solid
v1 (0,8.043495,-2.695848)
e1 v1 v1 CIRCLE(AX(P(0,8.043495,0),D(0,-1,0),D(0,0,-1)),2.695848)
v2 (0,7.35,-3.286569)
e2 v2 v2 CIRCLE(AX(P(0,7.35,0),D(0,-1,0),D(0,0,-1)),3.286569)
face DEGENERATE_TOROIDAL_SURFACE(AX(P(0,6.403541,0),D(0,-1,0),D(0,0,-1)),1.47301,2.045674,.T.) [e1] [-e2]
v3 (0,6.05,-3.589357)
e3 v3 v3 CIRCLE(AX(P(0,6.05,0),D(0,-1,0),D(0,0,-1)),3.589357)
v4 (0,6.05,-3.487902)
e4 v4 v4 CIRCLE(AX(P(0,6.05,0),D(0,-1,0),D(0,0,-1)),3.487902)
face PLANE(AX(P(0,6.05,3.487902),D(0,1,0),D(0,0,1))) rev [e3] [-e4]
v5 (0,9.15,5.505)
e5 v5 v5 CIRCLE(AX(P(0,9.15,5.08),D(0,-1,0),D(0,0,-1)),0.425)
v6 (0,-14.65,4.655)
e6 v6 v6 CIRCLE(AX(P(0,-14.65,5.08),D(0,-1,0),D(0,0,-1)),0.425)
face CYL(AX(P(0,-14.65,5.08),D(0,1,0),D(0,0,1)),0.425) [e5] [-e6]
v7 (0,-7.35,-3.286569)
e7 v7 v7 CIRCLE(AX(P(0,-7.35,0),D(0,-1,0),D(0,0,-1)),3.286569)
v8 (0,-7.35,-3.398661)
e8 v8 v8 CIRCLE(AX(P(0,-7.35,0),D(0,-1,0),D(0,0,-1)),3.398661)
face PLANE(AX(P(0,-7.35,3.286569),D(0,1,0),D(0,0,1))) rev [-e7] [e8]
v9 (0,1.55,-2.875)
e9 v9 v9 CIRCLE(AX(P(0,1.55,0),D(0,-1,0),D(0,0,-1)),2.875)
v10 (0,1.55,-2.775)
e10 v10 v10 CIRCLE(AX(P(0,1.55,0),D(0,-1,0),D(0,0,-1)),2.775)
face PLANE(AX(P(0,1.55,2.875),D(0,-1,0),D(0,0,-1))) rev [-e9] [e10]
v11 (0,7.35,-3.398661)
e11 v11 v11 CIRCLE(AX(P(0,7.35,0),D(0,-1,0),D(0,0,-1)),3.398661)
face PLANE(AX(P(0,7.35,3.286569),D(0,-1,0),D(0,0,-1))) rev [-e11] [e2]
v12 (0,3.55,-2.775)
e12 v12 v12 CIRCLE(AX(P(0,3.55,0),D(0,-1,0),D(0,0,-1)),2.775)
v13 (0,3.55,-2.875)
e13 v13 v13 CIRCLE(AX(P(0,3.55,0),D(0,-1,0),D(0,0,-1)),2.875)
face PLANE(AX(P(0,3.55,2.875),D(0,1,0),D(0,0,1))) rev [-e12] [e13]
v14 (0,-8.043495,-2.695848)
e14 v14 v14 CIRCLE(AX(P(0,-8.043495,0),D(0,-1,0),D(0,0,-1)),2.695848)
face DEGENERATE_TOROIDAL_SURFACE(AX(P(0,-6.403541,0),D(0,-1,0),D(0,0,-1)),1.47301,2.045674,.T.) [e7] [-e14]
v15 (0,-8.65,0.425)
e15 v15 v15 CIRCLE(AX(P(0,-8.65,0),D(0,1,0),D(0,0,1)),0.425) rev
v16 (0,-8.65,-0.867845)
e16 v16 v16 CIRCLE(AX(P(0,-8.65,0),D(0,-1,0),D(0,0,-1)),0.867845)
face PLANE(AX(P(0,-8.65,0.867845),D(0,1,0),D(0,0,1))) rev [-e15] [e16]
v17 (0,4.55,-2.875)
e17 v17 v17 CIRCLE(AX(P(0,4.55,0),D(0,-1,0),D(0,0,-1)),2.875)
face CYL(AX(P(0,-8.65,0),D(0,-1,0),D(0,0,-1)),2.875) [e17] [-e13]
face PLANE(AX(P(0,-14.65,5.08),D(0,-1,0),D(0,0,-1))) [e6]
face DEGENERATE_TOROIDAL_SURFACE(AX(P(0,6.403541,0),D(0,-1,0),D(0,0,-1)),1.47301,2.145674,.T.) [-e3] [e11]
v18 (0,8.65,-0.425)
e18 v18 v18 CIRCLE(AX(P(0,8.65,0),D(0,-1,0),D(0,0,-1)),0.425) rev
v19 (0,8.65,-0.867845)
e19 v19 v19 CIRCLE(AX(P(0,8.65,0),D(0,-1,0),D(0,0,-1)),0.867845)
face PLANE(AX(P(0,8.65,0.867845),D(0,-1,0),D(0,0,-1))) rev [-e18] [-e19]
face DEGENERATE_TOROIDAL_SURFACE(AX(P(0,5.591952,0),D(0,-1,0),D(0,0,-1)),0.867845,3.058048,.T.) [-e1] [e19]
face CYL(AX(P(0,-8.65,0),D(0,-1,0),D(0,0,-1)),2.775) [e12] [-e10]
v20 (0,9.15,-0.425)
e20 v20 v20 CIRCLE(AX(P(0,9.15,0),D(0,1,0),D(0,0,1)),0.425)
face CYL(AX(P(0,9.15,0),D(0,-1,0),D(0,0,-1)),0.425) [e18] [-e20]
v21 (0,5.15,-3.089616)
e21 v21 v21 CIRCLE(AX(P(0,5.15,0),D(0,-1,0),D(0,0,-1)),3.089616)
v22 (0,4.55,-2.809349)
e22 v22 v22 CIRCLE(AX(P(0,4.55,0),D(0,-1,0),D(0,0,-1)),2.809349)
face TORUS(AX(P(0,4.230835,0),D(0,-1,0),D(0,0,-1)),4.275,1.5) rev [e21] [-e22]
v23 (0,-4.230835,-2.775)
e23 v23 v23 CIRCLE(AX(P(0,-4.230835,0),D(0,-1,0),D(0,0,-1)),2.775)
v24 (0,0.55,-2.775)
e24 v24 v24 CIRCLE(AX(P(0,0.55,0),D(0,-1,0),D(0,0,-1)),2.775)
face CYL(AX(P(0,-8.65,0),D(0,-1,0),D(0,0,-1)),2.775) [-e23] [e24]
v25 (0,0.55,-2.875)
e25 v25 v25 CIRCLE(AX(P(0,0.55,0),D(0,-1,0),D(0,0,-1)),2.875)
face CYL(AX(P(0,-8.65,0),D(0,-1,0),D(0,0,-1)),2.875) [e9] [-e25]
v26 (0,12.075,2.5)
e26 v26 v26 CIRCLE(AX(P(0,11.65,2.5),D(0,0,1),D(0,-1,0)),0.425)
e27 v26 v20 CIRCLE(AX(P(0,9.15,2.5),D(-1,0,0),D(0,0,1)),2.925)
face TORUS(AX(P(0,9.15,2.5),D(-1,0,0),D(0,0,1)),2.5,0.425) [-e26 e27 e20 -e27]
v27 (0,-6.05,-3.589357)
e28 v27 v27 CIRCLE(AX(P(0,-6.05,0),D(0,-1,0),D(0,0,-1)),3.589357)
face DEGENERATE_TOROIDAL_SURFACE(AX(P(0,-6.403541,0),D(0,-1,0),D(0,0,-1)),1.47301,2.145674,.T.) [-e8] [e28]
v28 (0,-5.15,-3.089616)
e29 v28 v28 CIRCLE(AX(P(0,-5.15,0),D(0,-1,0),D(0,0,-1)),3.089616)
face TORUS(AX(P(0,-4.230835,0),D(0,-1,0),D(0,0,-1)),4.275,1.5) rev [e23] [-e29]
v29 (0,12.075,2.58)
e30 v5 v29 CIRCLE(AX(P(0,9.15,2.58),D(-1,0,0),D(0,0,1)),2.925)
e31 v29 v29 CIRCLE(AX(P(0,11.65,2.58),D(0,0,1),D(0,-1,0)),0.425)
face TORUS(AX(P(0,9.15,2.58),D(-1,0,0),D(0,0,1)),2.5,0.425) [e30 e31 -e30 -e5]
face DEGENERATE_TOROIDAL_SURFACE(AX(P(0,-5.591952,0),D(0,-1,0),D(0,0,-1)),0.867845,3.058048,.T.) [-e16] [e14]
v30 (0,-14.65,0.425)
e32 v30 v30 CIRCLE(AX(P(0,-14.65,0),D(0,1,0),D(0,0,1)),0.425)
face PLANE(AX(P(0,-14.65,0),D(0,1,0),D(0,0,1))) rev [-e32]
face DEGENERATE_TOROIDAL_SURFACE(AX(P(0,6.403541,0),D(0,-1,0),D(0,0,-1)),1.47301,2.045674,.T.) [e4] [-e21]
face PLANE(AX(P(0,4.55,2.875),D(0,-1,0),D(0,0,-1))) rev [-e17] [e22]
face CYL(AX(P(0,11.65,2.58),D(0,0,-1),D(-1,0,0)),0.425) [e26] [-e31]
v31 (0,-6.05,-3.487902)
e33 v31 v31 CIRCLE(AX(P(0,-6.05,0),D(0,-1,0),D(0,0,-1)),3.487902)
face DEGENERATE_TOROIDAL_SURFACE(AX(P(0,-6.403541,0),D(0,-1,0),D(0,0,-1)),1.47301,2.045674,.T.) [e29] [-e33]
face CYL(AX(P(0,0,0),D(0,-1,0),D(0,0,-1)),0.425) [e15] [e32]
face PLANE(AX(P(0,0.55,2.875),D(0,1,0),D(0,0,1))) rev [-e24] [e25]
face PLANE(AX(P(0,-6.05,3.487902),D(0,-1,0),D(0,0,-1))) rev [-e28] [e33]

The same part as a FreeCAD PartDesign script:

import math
import FreeCAD as App
import Part
import Sketcher
from FreeCAD import Vector

doc = App.newDocument("Part")
params = doc.addObject("Spreadsheet::Sheet", "Params")
for row, (alias, value) in enumerate([
    ("sketch1_radius", "1.5 mm"),
    ("sketch1_radius2", "1.5 mm"),
    ("sketch1_width", "1 mm"),
    ("sketch1_width2", "2 mm"),
    ("sketch1_width3", "1 mm"),
    ("revolution_angle", "360 deg"),
    ("sketch2_diameter", "0.85 mm"),
    ("sketch3_radius", "2.5 mm"),
    ("sketch3_width", "23.8 mm"),
    ("sketch3_height", "0.08 mm"),
], start=1):
    params.set(f"A{row}", alias)
    params.set(f"B{row}", "=" + value)
    params.setAlias(f"B{row}", alias)

body = doc.addObject("PartDesign::Body", "Body")

# Sketch on YZ plane
sketch1 = body.newObject("Sketcher::SketchObject", "Sketch")
sketch1.AttachmentSupport = (doc.getObject("YZ_Plane"), [""])
sketch1.MapMode = "FlatFace"
sketch1.addGeometry(Part.LineSegment(Vector(0.55, 2.775, 0), Vector(-4.230835, 2.775, 0)), False)
sketch1.addGeometry(Part.ArcOfCircle(Part.Circle(Vector(-4.230835, 4.275, 0), Vector(0, 0, 1), 1.5), math.radians(-127.790552), math.radians(-90)), False)
sketch1.addGeometry(Part.ArcOfCircle(Part.Circle(Vector(-6.403541, 1.47301, 0), Vector(0, 0, 1), 2.045674), math.radians(52.209448), math.radians(80.047953)), False)
sketch1.addGeometry(Part.LineSegment(Vector(-6.05, 3.487902, 0), Vector(-6.05, 3.589357, 0)), False)
sketch1.addGeometry(Part.ArcOfCircle(Part.Circle(Vector(-6.403541, 1.47301, 0), Vector(0, 0, 1), 2.145674), math.radians(80.516164), math.radians(116.174148)), False)
sketch1.addGeometry(Part.LineSegment(Vector(-7.35, 3.398661, 0), Vector(-7.35, 3.286569, 0)), False)
sketch1.addGeometry(Part.ArcOfCircle(Part.Circle(Vector(-6.403541, 1.47301, 0), Vector(0, 0, 1), 2.045674), math.radians(117.559118), math.radians(143.289785)), False)
sketch1.addGeometry(Part.ArcOfCircle(Part.Circle(Vector(-5.591952, 0.867845, 0), Vector(0, 0, 1), 3.058048), math.radians(143.289785), math.radians(180)), False)
sketch1.addGeometry(Part.LineSegment(Vector(-8.65, 0.867845, 0), Vector(-8.65, 0, 0)), False)
sketch1.addGeometry(Part.LineSegment(Vector(-8.65, 0, 0), Vector(8.65, 0, 0)), False)
sketch1.addGeometry(Part.LineSegment(Vector(8.65, 0, 0), Vector(8.65, 0.867845, 0)), False)
sketch1.addGeometry(Part.ArcOfCircle(Part.Circle(Vector(5.591952, 0.867845, 0), Vector(0, 0, 1), 3.058048), math.radians(0), math.radians(36.710215)), False)
sketch1.addGeometry(Part.ArcOfCircle(Part.Circle(Vector(6.403541, 1.47301, 0), Vector(0, 0, 1), 2.045674), math.radians(36.710215), math.radians(62.440882)), False)
sketch1.addGeometry(Part.LineSegment(Vector(7.35, 3.286569, 0), Vector(7.35, 3.398661, 0)), False)
sketch1.addGeometry(Part.ArcOfCircle(Part.Circle(Vector(6.403541, 1.47301, 0), Vector(0, 0, 1), 2.145674), math.radians(63.825852), math.radians(99.483836)), False)
sketch1.addGeometry(Part.LineSegment(Vector(6.05, 3.589357, 0), Vector(6.05, 3.487902, 0)), False)
sketch1.addGeometry(Part.ArcOfCircle(Part.Circle(Vector(6.403541, 1.47301, 0), Vector(0, 0, 1), 2.045674), math.radians(99.952047), math.radians(127.790552)), False)
sketch1.addGeometry(Part.ArcOfCircle(Part.Circle(Vector(4.230835, 4.275, 0), Vector(0, 0, 1), 1.5), math.radians(-77.714873), math.radians(-52.209448)), False)
sketch1.addGeometry(Part.LineSegment(Vector(4.55, 2.809349, 0), Vector(4.55, 2.875, 0)), False)
sketch1.addGeometry(Part.LineSegment(Vector(4.55, 2.875, 0), Vector(3.55, 2.875, 0)), False)
sketch1.addGeometry(Part.LineSegment(Vector(3.55, 2.875, 0), Vector(3.55, 2.775, 0)), False)
sketch1.addGeometry(Part.LineSegment(Vector(3.55, 2.775, 0), Vector(1.55, 2.775, 0)), False)
sketch1.addGeometry(Part.LineSegment(Vector(1.55, 2.775, 0), Vector(1.55, 2.875, 0)), False)
sketch1.addGeometry(Part.LineSegment(Vector(1.55, 2.875, 0), Vector(0.55, 2.875, 0)), False)
sketch1.addGeometry(Part.LineSegment(Vector(0.55, 2.875, 0), Vector(0.55, 2.775, 0)), False)
sketch1.addConstraint(Sketcher.Constraint("Coincident", 0, 2, 1, 2))
sketch1.addConstraint(Sketcher.Constraint("Coincident", 1, 1, 2, 1))
sketch1.addConstraint(Sketcher.Constraint("Coincident", 2, 2, 3, 1))
sketch1.addConstraint(Sketcher.Constraint("Coincident", 3, 2, 4, 1))
sketch1.addConstraint(Sketcher.Constraint("Coincident", 4, 2, 5, 1))
sketch1.addConstraint(Sketcher.Constraint("Coincident", 5, 2, 6, 1))
sketch1.addConstraint(Sketcher.Constraint("Coincident", 6, 2, 7, 1))
sketch1.addConstraint(Sketcher.Constraint("Coincident", 7, 2, 8, 1))
sketch1.addConstraint(Sketcher.Constraint("Coincident", 8, 2, 9, 1))
sketch1.addConstraint(Sketcher.Constraint("Coincident", 9, 2, 10, 1))
sketch1.addConstraint(Sketcher.Constraint("Coincident", 10, 2, 11, 1))
sketch1.addConstraint(Sketcher.Constraint("Coincident", 11, 2, 12, 1))
sketch1.addConstraint(Sketcher.Constraint("Coincident", 12, 2, 13, 1))
sketch1.addConstraint(Sketcher.Constraint("Coincident", 13, 2, 14, 1))
sketch1.addConstraint(Sketcher.Constraint("Coincident", 14, 2, 15, 1))
sketch1.addConstraint(Sketcher.Constraint("Coincident", 15, 2, 16, 1))
sketch1.addConstraint(Sketcher.Constraint("Coincident", 16, 2, 17, 2))
sketch1.addConstraint(Sketcher.Constraint("Coincident", 17, 1, 18, 1))
sketch1.addConstraint(Sketcher.Constraint("Coincident", 18, 2, 19, 1))
sketch1.addConstraint(Sketcher.Constraint("Coincident", 19, 2, 20, 1))
sketch1.addConstraint(Sketcher.Constraint("Coincident", 20, 2, 21, 1))
sketch1.addConstraint(Sketcher.Constraint("Coincident", 21, 2, 22, 1))
sketch1.addConstraint(Sketcher.Constraint("Coincident", 22, 2, 23, 1))
sketch1.addConstraint(Sketcher.Constraint("Coincident", 23, 2, 24, 1))
sketch1.addConstraint(Sketcher.Constraint("Coincident", 24, 2, 0, 1))
sketch1.addConstraint(Sketcher.Constraint("Horizontal", 0))
sketch1.addConstraint(Sketcher.Constraint("Vertical", 3))
sketch1.addConstraint(Sketcher.Constraint("Vertical", 5))
sketch1.addConstraint(Sketcher.Constraint("Vertical", 8))
sketch1.addConstraint(Sketcher.Constraint("Horizontal", 9))
sketch1.addConstraint(Sketcher.Constraint("Vertical", 10))
sketch1.addConstraint(Sketcher.Constraint("Vertical", 13))
sketch1.addConstraint(Sketcher.Constraint("Vertical", 15))
sketch1.addConstraint(Sketcher.Constraint("Vertical", 18))
sketch1.addConstraint(Sketcher.Constraint("Horizontal", 19))
sketch1.addConstraint(Sketcher.Constraint("Vertical", 20))
sketch1.addConstraint(Sketcher.Constraint("Horizontal", 21))
sketch1.addConstraint(Sketcher.Constraint("Vertical", 22))
sketch1.addConstraint(Sketcher.Constraint("Horizontal", 23))
sketch1.addConstraint(Sketcher.Constraint("Vertical", 24))
sketch1.addConstraint(Sketcher.Constraint("Coincident", 4, 3, 2, 3))
sketch1.addConstraint(Sketcher.Constraint("Coincident", 6, 3, 2, 3))
sketch1.addConstraint(Sketcher.Constraint("Coincident", 14, 3, 12, 3))
sketch1.addConstraint(Sketcher.Constraint("Coincident", 16, 3, 12, 3))
sketch1.addConstraint(Sketcher.Constraint("PointOnObject", 8, 2, -1))
sketch1.addConstraint(Sketcher.Constraint("Radius", 1, 1.5))
sketch1.addConstraint(Sketcher.Constraint("Radius", 17, 1.5))
sketch1.addConstraint(Sketcher.Constraint("DistanceX", 19, 2, 19, 1, 1.0))
sketch1.addConstraint(Sketcher.Constraint("DistanceX", 21, 2, 21, 1, 2.0))
sketch1.addConstraint(Sketcher.Constraint("DistanceX", 23, 2, 23, 1, 1.0))
sketch1.addConstraint(Sketcher.Constraint("DistanceX", 9, 1, 9, 2, 17.3))
sketch1.addConstraint(Sketcher.Constraint("DistanceY", 20, 2, 20, 1, 0.1))
sketch1.addConstraint(Sketcher.Constraint("DistanceY", 22, 1, 22, 2, 0.1))
sketch1.addConstraint(Sketcher.Constraint("DistanceY", 24, 2, 24, 1, 0.1))
sketch1.addConstraint(Sketcher.Constraint("DistanceX", 2, 2, 1, 1, 0.9))
sketch1.addConstraint(Sketcher.Constraint("DistanceX", 4, 2, 2, 2, 1.3))
sketch1.addConstraint(Sketcher.Constraint("DistanceX", 7, 2, 5, 2, 1.3))
sketch1.addConstraint(Sketcher.Constraint("DistanceX", 12, 2, 10, 2, 1.3))
sketch1.addConstraint(Sketcher.Constraint("DistanceX", 14, 2, 13, 2, 1.3))
sketch1.addConstraint(Sketcher.Constraint("DistanceX", 16, 2, 15, 2, 0.9))
sketch1.addConstraint(Sketcher.Constraint("DistanceX", 17, 1, 16, 2, 0.6))
sketch1.addConstraint(Sketcher.Constraint("DistanceY", 18, 2, 17, 3, 1.4))
sketch1.addConstraint(Sketcher.Constraint("DistanceX", 1, 1, -1, 1, 5.15))
sketch1.addConstraint(Sketcher.Constraint("DistanceY", -1, 1, 1, 3, 4.275))
sketch1.addConstraint(Sketcher.Constraint("Radius", 2, 2.045674))
sketch1.addConstraint(Sketcher.Constraint("Radius", 4, 2.145674))
sketch1.addConstraint(Sketcher.Constraint("Radius", 6, 2.045674))
sketch1.addConstraint(Sketcher.Constraint("Radius", 7, 3.058048))
sketch1.addConstraint(Sketcher.Constraint("Radius", 11, 3.058048))
sketch1.addConstraint(Sketcher.Constraint("Radius", 12, 2.045674))
sketch1.addConstraint(Sketcher.Constraint("Radius", 14, 2.145674))
sketch1.addConstraint(Sketcher.Constraint("Radius", 16, 2.045674))
sketch1.addConstraint(Sketcher.Constraint("DistanceY", 5, 2, 5, 1, 0.112092))
sketch1.addConstraint(Sketcher.Constraint("DistanceY", 13, 1, 13, 2, 0.112092))
sketch1.addConstraint(Sketcher.Constraint("DistanceY", 18, 1, 18, 2, 0.065651))
sketch1.addConstraint(Sketcher.Constraint("DistanceY", -1, 1, 2, 2, 3.487902))
sketch1.addConstraint(Sketcher.Constraint("DistanceX", 0, 2, 0, 1, 4.780835))
sketch1.addConstraint(Sketcher.Constraint("DistanceY", 8, 2, 8, 1, 0.867845))
sketch1.addConstraint(Sketcher.Constraint("DistanceY", 10, 1, 10, 2, 0.867845))
sketch1.addConstraint(Sketcher.Constraint("DistanceY", -1, 1, 6, 2, 2.695848))
sketch1.addConstraint(Sketcher.Constraint("DistanceY", -1, 1, 11, 2, 2.695848))
sketch1.setExpression("Constraints[45]", "Params.sketch1_radius")
sketch1.setExpression("Constraints[46]", "Params.sketch1_radius2")
sketch1.setExpression("Constraints[47]", "Params.sketch1_width")
sketch1.setExpression("Constraints[48]", "Params.sketch1_width2")
sketch1.setExpression("Constraints[49]", "Params.sketch1_width3")
revolution = body.newObject("PartDesign::Revolution", "Revolution")
revolution.Profile = sketch1
revolution.ReferenceAxis = (sketch1, ["H_Axis"])
revolution.setExpression("Angle", "Params.revolution_angle")

# Sketch on XZ plane
sketch2 = body.newObject("Sketcher::SketchObject", "Sketch001")
sketch2.AttachmentSupport = (doc.getObject("XZ_Plane"), [""])
sketch2.MapMode = "FlatFace"
sketch2.AttachmentOffset = App.Placement(Vector(0, 0, 14.65), App.Rotation())
sketch2.addGeometry(Part.Circle(Vector(0, 5.08, 0), Vector(0, 0, 1), 0.425), False)
sketch2.addConstraint(Sketcher.Constraint("PointOnObject", 0, 3, -2))
sketch2.addConstraint(Sketcher.Constraint("Diameter", 0, 0.85))
sketch2.addConstraint(Sketcher.Constraint("DistanceY", -1, 1, 0, 3, 5.08))
sketch2.setExpression("Constraints[1]", "Params.sketch2_diameter")

# Sketch on YZ plane
sketch3 = body.newObject("Sketcher::SketchObject", "Sketch002")
sketch3.AttachmentSupport = (doc.getObject("YZ_Plane"), [""])
sketch3.MapMode = "FlatFace"
sketch3.addGeometry(Part.LineSegment(Vector(-14.65, 5.08, 0), Vector(9.15, 5.08, 0)), False)
sketch3.addGeometry(Part.ArcOfCircle(Part.Circle(Vector(9.15, 2.58, 0), Vector(0, 0, 1), 2.5), math.radians(0), math.radians(90)), False)
sketch3.addGeometry(Part.LineSegment(Vector(11.65, 2.58, 0), Vector(11.65, 2.5, 0)), False)
sketch3.addGeometry(Part.ArcOfCircle(Part.Circle(Vector(9.15, 2.5, 0), Vector(0, 0, 1), 2.5), math.radians(-90), math.radians(0)), False)
sketch3.addGeometry(Part.LineSegment(Vector(9.15, 0, 0), Vector(-14.65, 0, 0)), False)
sketch3.addConstraint(Sketcher.Constraint("Tangent", 0, 2, 1, 2))
sketch3.addConstraint(Sketcher.Constraint("Tangent", 1, 1, 2, 1))
sketch3.addConstraint(Sketcher.Constraint("Tangent", 2, 2, 3, 2))
sketch3.addConstraint(Sketcher.Constraint("Tangent", 3, 1, 4, 1))
sketch3.addConstraint(Sketcher.Constraint("Horizontal", 0))
sketch3.addConstraint(Sketcher.Constraint("Vertical", 2))
sketch3.addConstraint(Sketcher.Constraint("Horizontal", 4))
sketch3.addConstraint(Sketcher.Constraint("Equal", 1, 3))
sketch3.addConstraint(Sketcher.Constraint("PointOnObject", 3, 1, -1))
sketch3.addConstraint(Sketcher.Constraint("Vertical", 0, 1, 4, 2))
sketch3.addConstraint(Sketcher.Constraint("Radius", 1, 2.5))
sketch3.addConstraint(Sketcher.Constraint("DistanceX", 0, 1, 0, 2, 23.8))
sketch3.addConstraint(Sketcher.Constraint("DistanceY", 2, 2, 2, 1, 0.08))
sketch3.addConstraint(Sketcher.Constraint("DistanceX", -1, 1, 1, 3, 9.15))
sketch3.setExpression("Constraints[10]", "Params.sketch3_radius")
sketch3.setExpression("Constraints[11]", "Params.sketch3_width")
sketch3.setExpression("Constraints[12]", "Params.sketch3_height")
doc.recompute()

additivepipe = body.newObject("PartDesign::AdditivePipe", "AdditivePipe")
additivepipe.Profile = sketch2
additivepipe.Spine = (sketch3, ["Edge1", "Edge2", "Edge3", "Edge4", "Edge5"])

doc.recompute()
